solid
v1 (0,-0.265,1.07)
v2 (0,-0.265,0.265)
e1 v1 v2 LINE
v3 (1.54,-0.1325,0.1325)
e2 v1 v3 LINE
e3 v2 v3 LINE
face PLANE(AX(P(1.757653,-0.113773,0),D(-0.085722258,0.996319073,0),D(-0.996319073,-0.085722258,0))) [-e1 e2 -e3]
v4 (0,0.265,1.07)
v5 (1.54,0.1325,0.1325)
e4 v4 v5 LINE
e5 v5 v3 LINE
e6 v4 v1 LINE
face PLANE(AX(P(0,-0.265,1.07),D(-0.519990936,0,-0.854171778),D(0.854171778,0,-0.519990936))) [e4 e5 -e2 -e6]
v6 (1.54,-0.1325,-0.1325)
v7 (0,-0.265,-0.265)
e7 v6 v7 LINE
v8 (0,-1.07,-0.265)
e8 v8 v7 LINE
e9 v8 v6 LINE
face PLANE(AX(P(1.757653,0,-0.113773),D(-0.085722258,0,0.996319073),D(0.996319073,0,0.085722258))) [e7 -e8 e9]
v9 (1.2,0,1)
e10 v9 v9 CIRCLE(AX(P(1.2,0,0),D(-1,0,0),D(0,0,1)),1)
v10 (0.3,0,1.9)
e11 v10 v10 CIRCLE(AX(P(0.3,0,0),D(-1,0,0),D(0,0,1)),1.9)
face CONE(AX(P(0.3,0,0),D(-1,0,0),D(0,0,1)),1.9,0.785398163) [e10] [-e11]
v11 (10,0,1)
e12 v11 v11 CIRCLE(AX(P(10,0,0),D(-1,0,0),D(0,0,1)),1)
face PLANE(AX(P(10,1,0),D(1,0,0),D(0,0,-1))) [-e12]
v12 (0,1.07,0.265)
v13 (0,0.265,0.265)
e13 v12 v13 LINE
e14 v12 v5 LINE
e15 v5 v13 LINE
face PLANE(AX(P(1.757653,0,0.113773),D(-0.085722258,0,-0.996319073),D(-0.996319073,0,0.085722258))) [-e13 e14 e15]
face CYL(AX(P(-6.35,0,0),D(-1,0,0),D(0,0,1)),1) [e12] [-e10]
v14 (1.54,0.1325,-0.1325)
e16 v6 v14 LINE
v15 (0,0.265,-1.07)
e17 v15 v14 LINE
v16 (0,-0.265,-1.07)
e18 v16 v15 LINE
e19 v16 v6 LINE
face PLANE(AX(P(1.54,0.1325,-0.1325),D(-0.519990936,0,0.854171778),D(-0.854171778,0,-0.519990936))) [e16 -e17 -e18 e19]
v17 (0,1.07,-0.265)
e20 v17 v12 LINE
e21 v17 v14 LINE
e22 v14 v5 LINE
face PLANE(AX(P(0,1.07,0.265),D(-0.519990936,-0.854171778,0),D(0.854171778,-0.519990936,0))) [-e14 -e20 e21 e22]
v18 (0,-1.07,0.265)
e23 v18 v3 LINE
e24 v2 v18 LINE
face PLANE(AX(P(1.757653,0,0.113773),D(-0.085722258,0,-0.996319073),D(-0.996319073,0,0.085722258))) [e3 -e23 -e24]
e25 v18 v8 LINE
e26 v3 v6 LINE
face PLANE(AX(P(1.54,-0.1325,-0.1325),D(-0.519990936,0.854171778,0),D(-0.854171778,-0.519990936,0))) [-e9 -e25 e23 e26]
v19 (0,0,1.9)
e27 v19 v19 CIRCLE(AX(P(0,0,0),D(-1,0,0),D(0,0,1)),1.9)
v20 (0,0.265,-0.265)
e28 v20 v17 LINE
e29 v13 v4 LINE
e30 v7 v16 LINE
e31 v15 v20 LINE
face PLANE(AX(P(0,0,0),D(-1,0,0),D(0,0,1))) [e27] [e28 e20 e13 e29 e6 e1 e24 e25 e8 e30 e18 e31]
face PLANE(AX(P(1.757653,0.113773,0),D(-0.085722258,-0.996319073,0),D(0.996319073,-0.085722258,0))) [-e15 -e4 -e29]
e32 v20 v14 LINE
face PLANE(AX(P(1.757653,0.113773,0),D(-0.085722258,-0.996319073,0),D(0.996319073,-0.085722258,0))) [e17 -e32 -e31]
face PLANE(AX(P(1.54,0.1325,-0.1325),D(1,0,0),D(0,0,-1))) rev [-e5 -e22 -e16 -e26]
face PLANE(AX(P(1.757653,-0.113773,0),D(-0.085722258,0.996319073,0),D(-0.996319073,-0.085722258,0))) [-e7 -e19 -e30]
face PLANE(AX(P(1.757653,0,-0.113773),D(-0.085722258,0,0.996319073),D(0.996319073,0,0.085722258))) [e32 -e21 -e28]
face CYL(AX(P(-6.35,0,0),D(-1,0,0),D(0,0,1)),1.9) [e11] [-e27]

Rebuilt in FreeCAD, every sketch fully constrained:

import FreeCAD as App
import Part
import Sketcher

V = App.Vector
Q = App.Units.Quantity

doc = App.newDocument("Part")
body = doc.addObject("PartDesign::Body", "Body")

sketch1 = body.newObject("Sketcher::SketchObject", "Sketch")
sketch1.AttachmentSupport = (doc.getObject("XY_Plane"), [""])
sketch1.MapMode = "FlatFace"
sketch1.addGeometry([
    Part.LineSegment(V(0, 1.9, 0), V(0, 0, 0)),
    Part.LineSegment(V(0, 0, 0), V(10, 0, 0)),
    Part.LineSegment(V(10, 0, 0), V(10, 1, 0)),
    Part.LineSegment(V(10, 1, 0), V(1.2, 1, 0)),
    Part.LineSegment(V(1.2, 1, 0), V(0.3, 1.9, 0)),
    Part.LineSegment(V(0.3, 1.9, 0), V(0, 1.9, 0)),
], False)
sketch1.addConstraint([
    Sketcher.Constraint("Coincident", 0, 2, 1, 1),
    Sketcher.Constraint("Coincident", 1, 2, 2, 1),
    Sketcher.Constraint("Coincident", 2, 2, 3, 1),
    Sketcher.Constraint("Coincident", 3, 2, 4, 1),
    Sketcher.Constraint("Coincident", 4, 2, 5, 1),
    Sketcher.Constraint("Coincident", 5, 2, 0, 1),
    Sketcher.Constraint("Vertical", 0),
    Sketcher.Constraint("Horizontal", 1),
    Sketcher.Constraint("Vertical", 2),
    Sketcher.Constraint("Horizontal", 3),
    Sketcher.Constraint("Horizontal", 5),
    Sketcher.Constraint("Coincident", 0, 2, -1, 1),
    Sketcher.Constraint("DistanceX", 1, 1, 1, 2, Q("10 mm")),
    Sketcher.Constraint("DistanceY", 2, 1, 2, 2, Q("1 mm")),
    Sketcher.Constraint("Angle", 4, Q("135 deg")),
    Sketcher.Constraint("DistanceX", 3, 2, 3, 1, Q("8.8 mm")),
    Sketcher.Constraint("DistanceX", 5, 2, 5, 1, Q("0.3 mm")),
])
revolution = body.newObject("PartDesign::Revolution", "Revolution")
revolution.Profile = sketch1
revolution.ReferenceAxis = (sketch1, ["H_Axis"])
revolution.Angle = 360

sketch2 = body.newObject("Sketcher::SketchObject", "Sketch001")
sketch2.AttachmentSupport = (doc.getObject("YZ_Plane"), [""])
sketch2.MapMode = "FlatFace"
sketch2.addGeometry([
    Part.LineSegment(V(1.07, -0.265, 0), V(-1.07, -0.265, 0)),
    Part.LineSegment(V(-1.07, -0.265, 0), V(-1.07, 0.265, 0)),
    Part.LineSegment(V(-1.07, 0.265, 0), V(1.07, 0.265, 0)),
    Part.LineSegment(V(1.07, 0.265, 0), V(1.07, -0.265, 0)),
], False)
sketch2.addConstraint([
    Sketcher.Constraint("Coincident", 0, 2, 1, 1),
    Sketcher.Constraint("Coincident", 1, 2, 2, 1),
    Sketcher.Constraint("Coincident", 2, 2, 3, 1),
    Sketcher.Constraint("Coincident", 3, 2, 0, 1),
    Sketcher.Constraint("Horizontal", 0),
    Sketcher.Constraint("Vertical", 1),
    Sketcher.Constraint("Horizontal", 2),
    Sketcher.Constraint("Vertical", 3),
    Sketcher.Constraint("Symmetric", 0, 2, 2, 2, -1, 1),
    Sketcher.Constraint("DistanceX", 0, 2, 0, 1, Q("2.14 mm")),
    Sketcher.Constraint("DistanceY", 1, 1, 1, 2, Q("0.53 mm")),
])

sketch3 = body.newObject("Sketcher::SketchObject", "Sketch002")
sketch3.AttachmentSupport = (doc.getObject("YZ_Plane"), [""])
sketch3.MapMode = "FlatFace"
sketch3.AttachmentOffset = App.Placement(V(0, 0, 1.54), App.Rotation())
sketch3.addGeometry([
    Part.LineSegment(V(0.1325, -0.1325, 0), V(-0.1325, -0.1325, 0)),
    Part.LineSegment(V(-0.1325, -0.1325, 0), V(-0.1325, 0.1325, 0)),
    Part.LineSegment(V(-0.1325, 0.1325, 0), V(0.1325, 0.1325, 0)),
    Part.LineSegment(V(0.1325, 0.1325, 0), V(0.1325, -0.1325, 0)),
], False)
sketch3.addConstraint([
    Sketcher.Constraint("Coincident", 0, 2, 1, 1),
    Sketcher.Constraint("Coincident", 1, 2, 2, 1),
    Sketcher.Constraint("Coincident", 2, 2, 3, 1),
    Sketcher.Constraint("Coincident", 3, 2, 0, 1),
    Sketcher.Constraint("Horizontal", 0),
    Sketcher.Constraint("Vertical", 1),
    Sketcher.Constraint("Horizontal", 2),
    Sketcher.Constraint("Vertical", 3),
    Sketcher.Constraint("Symmetric", 0, 2, 2, 2, -1, 1),
    Sketcher.Constraint("Equal", 2, 1),
    Sketcher.Constraint("DistanceX", 0, 2, 0, 1, Q("0.265 mm")),
])

subtractiveloft = body.newObject("PartDesign::SubtractiveLoft", "SubtractiveLoft")
subtractiveloft.Profile = sketch2
subtractiveloft.Sections = [sketch3]
doc.recompute()

polarpattern = body.newObject("PartDesign::PolarPattern", "PolarPattern")
polarpattern.Originals = [subtractiveloft]
polarpattern.Axis = (doc.getObject("X_Axis"), [""])
polarpattern.Angle = 90
polarpattern.Occurrences = 2
body.Tip = polarpattern

doc.recompute()
